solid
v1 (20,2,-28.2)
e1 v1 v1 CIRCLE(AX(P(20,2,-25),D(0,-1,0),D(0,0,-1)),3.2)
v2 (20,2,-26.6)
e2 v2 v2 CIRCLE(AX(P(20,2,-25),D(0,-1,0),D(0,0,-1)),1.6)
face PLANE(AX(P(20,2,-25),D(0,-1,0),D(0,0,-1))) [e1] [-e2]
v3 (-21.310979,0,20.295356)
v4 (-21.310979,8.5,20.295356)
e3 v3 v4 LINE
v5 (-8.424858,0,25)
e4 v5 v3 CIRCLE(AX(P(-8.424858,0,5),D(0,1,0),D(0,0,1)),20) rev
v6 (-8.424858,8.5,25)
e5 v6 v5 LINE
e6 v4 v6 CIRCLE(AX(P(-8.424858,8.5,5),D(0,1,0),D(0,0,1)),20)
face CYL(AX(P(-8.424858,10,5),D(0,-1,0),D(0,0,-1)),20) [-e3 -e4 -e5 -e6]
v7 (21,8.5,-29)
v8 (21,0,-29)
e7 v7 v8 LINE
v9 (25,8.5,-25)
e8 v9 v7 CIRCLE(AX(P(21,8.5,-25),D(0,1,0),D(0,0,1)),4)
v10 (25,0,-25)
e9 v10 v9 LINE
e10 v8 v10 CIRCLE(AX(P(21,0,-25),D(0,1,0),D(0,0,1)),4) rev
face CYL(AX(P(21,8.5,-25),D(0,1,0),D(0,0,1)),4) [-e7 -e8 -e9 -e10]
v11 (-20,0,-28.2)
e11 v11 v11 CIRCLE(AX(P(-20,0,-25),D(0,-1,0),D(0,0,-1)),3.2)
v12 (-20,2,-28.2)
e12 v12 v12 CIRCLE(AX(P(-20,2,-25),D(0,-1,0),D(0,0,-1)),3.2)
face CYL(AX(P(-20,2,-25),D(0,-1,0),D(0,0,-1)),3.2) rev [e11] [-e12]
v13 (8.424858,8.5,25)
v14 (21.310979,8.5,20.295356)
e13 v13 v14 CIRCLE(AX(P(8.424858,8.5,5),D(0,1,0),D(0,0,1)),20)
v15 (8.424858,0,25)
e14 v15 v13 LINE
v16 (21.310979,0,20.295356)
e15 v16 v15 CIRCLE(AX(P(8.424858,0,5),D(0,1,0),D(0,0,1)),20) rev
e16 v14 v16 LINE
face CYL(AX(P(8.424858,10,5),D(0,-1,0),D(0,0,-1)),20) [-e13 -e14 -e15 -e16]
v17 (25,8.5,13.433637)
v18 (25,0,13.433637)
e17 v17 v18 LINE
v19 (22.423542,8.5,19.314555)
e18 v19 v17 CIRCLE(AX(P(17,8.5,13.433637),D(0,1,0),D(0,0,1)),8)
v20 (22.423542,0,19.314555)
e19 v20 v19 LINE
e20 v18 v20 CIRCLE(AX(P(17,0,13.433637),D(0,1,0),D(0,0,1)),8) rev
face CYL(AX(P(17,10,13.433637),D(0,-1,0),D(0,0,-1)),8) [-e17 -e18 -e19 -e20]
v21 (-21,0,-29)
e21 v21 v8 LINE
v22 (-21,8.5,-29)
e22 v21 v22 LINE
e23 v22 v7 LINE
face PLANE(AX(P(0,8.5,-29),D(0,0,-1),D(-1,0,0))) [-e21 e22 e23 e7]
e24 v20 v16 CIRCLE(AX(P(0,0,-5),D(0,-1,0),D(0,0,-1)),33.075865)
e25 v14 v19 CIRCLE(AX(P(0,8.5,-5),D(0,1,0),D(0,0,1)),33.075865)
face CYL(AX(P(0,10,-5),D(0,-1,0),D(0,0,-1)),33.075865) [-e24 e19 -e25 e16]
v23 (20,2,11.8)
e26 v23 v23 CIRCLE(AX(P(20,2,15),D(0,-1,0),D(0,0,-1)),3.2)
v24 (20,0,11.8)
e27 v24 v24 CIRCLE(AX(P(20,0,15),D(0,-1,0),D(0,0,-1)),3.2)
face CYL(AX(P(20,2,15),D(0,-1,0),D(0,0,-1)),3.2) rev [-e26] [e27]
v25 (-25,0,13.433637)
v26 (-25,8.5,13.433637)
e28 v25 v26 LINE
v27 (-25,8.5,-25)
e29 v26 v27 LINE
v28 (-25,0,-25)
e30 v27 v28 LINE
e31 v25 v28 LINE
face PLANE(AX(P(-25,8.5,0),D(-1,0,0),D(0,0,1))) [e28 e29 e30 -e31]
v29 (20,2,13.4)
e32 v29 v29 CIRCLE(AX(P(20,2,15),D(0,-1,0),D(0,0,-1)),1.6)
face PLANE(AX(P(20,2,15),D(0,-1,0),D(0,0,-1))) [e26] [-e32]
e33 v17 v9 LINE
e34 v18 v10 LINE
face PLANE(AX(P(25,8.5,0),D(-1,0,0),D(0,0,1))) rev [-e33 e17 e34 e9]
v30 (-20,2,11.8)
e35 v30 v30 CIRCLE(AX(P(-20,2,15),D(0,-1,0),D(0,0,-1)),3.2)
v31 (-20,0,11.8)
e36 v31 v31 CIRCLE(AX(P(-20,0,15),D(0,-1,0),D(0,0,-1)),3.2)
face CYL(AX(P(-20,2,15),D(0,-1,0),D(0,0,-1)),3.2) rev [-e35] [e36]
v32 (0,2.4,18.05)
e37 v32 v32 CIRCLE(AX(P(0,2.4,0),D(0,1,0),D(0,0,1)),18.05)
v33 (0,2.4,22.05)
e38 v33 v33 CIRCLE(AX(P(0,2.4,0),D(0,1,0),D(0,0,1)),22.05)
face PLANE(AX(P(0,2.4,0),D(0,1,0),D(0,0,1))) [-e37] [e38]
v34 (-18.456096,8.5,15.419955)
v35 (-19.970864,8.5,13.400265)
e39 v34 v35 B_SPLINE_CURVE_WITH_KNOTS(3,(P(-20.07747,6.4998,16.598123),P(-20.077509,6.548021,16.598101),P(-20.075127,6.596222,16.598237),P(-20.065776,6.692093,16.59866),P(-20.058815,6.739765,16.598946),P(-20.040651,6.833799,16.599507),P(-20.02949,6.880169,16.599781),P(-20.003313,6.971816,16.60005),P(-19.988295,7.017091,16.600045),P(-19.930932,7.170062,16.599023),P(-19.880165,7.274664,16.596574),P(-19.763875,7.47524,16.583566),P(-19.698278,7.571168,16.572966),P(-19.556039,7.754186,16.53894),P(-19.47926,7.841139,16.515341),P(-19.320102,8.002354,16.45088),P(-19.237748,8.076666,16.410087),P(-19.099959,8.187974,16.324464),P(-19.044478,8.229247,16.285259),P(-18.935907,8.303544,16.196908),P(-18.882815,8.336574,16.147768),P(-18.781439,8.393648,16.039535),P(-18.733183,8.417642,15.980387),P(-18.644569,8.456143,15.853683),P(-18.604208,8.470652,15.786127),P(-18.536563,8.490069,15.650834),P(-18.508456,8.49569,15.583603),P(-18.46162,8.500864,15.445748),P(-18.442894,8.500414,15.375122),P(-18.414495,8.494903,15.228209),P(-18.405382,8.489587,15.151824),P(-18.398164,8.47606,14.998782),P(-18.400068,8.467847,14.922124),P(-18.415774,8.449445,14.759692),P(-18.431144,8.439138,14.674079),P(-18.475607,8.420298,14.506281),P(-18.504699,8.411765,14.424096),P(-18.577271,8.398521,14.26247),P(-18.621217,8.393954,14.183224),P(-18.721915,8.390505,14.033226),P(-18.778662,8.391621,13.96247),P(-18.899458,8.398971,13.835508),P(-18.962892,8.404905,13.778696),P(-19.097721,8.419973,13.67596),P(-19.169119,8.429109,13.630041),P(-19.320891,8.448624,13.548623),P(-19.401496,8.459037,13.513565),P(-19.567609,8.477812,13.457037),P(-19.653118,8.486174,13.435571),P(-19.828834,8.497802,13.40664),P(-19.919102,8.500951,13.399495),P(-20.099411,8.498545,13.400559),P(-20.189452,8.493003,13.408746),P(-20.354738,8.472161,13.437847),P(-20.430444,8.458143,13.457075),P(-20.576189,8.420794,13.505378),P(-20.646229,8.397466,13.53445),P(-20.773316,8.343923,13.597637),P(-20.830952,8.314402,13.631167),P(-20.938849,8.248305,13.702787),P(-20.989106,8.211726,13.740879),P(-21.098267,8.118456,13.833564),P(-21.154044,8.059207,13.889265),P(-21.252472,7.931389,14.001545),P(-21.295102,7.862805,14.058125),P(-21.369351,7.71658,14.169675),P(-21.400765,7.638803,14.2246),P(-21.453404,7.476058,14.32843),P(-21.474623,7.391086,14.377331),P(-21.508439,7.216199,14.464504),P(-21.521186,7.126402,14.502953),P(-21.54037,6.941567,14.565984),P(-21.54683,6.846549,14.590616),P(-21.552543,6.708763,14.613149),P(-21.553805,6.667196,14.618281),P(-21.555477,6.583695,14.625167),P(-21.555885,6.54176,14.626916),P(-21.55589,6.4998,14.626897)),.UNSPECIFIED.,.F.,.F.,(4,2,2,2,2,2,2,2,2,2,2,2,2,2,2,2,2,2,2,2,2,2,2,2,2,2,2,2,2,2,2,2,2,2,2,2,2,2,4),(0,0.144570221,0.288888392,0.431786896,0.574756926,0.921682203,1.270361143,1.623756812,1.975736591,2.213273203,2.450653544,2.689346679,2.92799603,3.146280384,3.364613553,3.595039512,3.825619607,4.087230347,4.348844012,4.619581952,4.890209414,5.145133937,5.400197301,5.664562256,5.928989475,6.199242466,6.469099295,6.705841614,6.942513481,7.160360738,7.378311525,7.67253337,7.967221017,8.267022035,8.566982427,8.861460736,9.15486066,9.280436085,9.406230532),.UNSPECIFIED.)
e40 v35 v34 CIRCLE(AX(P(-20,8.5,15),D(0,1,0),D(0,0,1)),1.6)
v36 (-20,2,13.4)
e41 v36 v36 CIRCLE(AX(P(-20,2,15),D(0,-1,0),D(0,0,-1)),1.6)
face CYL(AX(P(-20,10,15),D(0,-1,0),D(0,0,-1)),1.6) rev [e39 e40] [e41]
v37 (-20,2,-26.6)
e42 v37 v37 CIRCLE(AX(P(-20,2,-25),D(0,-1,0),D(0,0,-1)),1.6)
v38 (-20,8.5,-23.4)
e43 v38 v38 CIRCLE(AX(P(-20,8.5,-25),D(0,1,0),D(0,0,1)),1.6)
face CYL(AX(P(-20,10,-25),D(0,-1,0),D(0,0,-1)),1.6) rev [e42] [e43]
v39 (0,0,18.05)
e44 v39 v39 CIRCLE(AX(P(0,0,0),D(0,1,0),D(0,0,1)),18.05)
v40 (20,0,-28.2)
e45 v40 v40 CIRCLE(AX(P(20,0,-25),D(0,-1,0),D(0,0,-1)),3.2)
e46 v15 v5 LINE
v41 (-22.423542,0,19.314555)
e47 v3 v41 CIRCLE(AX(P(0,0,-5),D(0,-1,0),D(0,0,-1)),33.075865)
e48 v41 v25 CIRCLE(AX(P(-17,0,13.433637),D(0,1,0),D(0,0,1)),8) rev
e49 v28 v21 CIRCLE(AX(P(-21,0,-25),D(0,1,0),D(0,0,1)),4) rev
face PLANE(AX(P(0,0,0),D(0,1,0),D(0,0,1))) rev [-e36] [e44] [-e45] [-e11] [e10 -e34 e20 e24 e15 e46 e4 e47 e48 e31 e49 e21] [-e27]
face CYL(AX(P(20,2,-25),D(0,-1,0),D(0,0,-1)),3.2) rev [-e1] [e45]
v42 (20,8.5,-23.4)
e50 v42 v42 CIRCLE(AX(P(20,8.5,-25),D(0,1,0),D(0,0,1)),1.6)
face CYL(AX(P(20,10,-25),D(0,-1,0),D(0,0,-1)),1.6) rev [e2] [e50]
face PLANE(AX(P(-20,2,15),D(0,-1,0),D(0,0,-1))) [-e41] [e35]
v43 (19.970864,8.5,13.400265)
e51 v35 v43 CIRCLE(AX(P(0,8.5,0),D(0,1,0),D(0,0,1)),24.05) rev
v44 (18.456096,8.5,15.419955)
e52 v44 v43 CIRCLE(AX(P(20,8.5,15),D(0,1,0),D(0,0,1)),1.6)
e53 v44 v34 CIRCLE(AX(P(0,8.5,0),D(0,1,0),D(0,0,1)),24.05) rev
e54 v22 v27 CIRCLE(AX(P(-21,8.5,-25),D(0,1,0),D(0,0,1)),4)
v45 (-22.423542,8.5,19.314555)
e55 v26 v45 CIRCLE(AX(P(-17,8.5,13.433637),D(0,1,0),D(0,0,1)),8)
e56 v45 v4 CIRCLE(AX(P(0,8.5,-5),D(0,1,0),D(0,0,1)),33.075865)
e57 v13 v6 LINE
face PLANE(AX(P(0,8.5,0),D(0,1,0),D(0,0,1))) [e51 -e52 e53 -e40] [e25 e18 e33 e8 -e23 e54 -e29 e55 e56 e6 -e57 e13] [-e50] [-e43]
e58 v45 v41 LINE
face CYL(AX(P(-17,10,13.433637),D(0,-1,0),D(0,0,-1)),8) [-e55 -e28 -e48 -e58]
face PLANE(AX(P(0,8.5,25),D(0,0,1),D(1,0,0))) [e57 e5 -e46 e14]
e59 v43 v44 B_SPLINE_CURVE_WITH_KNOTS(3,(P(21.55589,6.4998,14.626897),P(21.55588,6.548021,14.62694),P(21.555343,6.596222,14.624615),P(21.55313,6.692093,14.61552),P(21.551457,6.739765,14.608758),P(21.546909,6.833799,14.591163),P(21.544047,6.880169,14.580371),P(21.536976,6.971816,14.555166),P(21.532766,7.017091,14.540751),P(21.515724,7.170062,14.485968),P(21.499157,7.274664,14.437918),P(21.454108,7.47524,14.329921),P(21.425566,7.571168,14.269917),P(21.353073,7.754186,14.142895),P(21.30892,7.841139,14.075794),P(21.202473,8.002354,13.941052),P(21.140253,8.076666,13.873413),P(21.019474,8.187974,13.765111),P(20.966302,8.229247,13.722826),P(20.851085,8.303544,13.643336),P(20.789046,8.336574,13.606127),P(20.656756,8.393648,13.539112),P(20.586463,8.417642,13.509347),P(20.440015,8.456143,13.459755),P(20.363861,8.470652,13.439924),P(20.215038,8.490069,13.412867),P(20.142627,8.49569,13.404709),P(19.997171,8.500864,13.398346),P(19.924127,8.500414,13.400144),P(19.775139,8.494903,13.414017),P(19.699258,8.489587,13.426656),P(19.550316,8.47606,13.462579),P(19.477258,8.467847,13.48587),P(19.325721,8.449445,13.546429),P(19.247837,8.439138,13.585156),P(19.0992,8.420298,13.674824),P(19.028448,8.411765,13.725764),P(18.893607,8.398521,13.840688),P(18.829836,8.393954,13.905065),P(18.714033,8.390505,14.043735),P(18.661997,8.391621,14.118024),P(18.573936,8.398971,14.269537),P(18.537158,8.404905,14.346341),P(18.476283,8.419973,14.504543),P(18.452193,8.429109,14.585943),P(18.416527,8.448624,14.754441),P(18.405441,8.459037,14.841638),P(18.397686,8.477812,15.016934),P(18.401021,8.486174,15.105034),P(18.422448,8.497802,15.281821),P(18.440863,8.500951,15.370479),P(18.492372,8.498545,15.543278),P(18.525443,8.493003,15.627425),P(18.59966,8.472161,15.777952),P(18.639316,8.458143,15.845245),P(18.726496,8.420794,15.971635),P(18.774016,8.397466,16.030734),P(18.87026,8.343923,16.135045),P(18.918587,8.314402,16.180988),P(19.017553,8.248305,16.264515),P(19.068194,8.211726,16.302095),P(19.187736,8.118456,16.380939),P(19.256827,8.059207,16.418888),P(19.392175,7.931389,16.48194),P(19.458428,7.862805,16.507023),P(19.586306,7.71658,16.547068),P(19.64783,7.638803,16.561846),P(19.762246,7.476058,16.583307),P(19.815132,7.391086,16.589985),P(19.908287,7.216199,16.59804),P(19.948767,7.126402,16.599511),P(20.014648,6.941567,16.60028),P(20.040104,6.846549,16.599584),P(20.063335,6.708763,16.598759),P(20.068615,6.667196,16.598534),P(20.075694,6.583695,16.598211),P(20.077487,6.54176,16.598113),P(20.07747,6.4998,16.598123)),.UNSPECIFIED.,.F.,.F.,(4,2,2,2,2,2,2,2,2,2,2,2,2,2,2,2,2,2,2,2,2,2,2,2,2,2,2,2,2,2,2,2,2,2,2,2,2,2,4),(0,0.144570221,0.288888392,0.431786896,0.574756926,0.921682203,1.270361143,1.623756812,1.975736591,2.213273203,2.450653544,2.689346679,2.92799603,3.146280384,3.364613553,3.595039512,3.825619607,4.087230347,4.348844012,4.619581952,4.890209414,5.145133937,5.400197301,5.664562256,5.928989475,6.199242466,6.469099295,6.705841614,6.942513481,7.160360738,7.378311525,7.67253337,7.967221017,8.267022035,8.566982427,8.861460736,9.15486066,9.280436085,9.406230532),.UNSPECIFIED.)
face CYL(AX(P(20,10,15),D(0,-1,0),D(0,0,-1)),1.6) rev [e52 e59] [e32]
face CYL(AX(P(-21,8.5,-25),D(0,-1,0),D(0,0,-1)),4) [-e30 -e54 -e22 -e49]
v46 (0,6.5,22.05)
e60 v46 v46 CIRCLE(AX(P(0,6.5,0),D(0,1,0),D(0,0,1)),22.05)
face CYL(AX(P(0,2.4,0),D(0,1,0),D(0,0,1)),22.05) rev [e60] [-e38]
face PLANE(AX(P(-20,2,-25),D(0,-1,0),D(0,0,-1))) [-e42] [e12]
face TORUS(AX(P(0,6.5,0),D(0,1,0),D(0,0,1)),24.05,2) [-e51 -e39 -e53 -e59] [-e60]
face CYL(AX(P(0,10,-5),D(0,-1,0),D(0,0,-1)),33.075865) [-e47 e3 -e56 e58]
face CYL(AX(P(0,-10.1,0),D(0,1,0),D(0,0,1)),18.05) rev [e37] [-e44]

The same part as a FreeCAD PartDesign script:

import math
import FreeCAD as App
import Part
import Sketcher

V = App.Vector


def edges_at(feature, points):
    """Names of the edges that pass closest to the given points."""
    edges = feature.Shape.Edges
    near = lambda p: min(range(len(edges)), key=lambda i: edges[i].distToShape(Part.Vertex(*p))[0])
    return sorted({f"Edge{near(p) + 1}" for p in points})

doc = App.newDocument("Part")
body = doc.addObject("PartDesign::Body", "Body")

sketch1 = body.newObject("Sketcher::SketchObject", "Sketch")
sketch1.AttachmentSupport = (doc.getObject("XZ_Plane"), [""])
sketch1.MapMode = "FlatFace"
sketch1.addGeometry(Part.Circle(V(0, 0, 0), V(0, 0, 1), 25), False)
sketch1.addConstraint(Sketcher.Constraint("Coincident", 0, 3, -1, 1))
sketch1.addConstraint(Sketcher.Constraint("Diameter", 0, 50.0))
pad1 = body.newObject("PartDesign::Pad", "Pad")
pad1.Profile = sketch1
pad1.Length = 8.5
pad1.Reversed = True

sketch2 = body.newObject("Sketcher::SketchObject", "Sketch001")
sketch2.AttachmentSupport = (doc.getObject("XZ_Plane"), [""])
sketch2.MapMode = "FlatFace"
sketch2.AttachmentOffset = App.Placement(V(0, 0, -8.5), App.Rotation())
sketch2.addGeometry(Part.Circle(V(0, 0, 0), V(0, 0, 1), 22), False)
sketch2.addConstraint(Sketcher.Constraint("Coincident", 0, 3, -1, 1))
sketch2.addConstraint(Sketcher.Constraint("Diameter", 0, 44.1))
pocket1 = body.newObject("PartDesign::Pocket", "Pocket")
pocket1.Profile = sketch2
pocket1.Length = 6.1
pocket1.Reversed = True

sketch3 = body.newObject("Sketcher::SketchObject", "Sketch002")
sketch3.AttachmentSupport = (doc.getObject("XZ_Plane"), [""])
sketch3.MapMode = "FlatFace"
sketch3.AttachmentOffset = App.Placement(V(0, 0, -2.4), App.Rotation())
sketch3.addGeometry(Part.Circle(V(0, 0, 0), V(0, 0, 1), 18), False)
sketch3.addConstraint(Sketcher.Constraint("Coincident", 0, 3, -1, 1))
sketch3.addConstraint(Sketcher.Constraint("Diameter", 0, 36.1))
pocket2 = body.newObject("PartDesign::Pocket", "Pocket001")
pocket2.Profile = sketch3
pocket2.Length = 12.5
pocket2.Reversed = True
doc.recompute()

fillet = body.newObject("PartDesign::Fillet", "Fillet")
fillet.Base = (pocket2, edges_at(pocket2, [(0, 8.5, -22.05)]))
fillet.Radius = 2

sketch4 = body.newObject("Sketcher::SketchObject", "Sketch003")
sketch4.AttachmentSupport = (doc.getObject("XZ_Plane"), [""])
sketch4.MapMode = "FlatFace"
sketch4.addGeometry(Part.ArcOfCircle(Part.Circle(V(0, 0, 0), V(0, 0, 1), 25), math.radians(90), math.radians(180)), False)
sketch4.addGeometry(Part.LineSegment(V(0, 25, 0), V(-25, 25, 0)), False)
sketch4.addGeometry(Part.LineSegment(V(-25, 25, 0), V(-25, 0, 0)), False)
sketch4.addGeometry(Part.LineSegment(V(25, 25, 0), V(0, 25, 0)), False)
sketch4.addGeometry(Part.ArcOfCircle(Part.Circle(V(0, 0, 0), V(0, 0, 1), 25), math.radians(0), math.radians(90)), False)
sketch4.addGeometry(Part.LineSegment(V(25, 0, 0), V(25, 25, 0)), False)
sketch4.addGeometry(Part.ArcOfCircle(Part.Circle(V(0, 0, 0), V(0, 0, 1), 25), math.radians(-90), math.radians(0)), False)
sketch4.addGeometry(Part.ArcOfCircle(Part.Circle(V(0, 0, 0), V(0, 0, 1), 25), math.radians(-180), math.radians(-90)), False)
sketch4.addGeometry(Part.LineSegment(V(-25, 0, 0), V(-25, -29, 0)), False)
sketch4.addGeometry(Part.LineSegment(V(-25, -29, 0), V(25, -29, 0)), False)
sketch4.addGeometry(Part.LineSegment(V(25, -29, 0), V(25, 0, 0)), False)
sketch4.addConstraint(Sketcher.Constraint("Tangent", 0, 1, 1, 1))
sketch4.addConstraint(Sketcher.Constraint("Coincident", 1, 2, 2, 1))
sketch4.addConstraint(Sketcher.Constraint("Tangent", 2, 2, 0, 2))
sketch4.addConstraint(Sketcher.Constraint("Tangent", 3, 2, 4, 2))
sketch4.addConstraint(Sketcher.Constraint("Tangent", 4, 1, 5, 1))
sketch4.addConstraint(Sketcher.Constraint("Coincident", 5, 2, 3, 1))
sketch4.addConstraint(Sketcher.Constraint("Tangent", 6, 1, 7, 2))
sketch4.addConstraint(Sketcher.Constraint("Tangent", 7, 1, 8, 1))
sketch4.addConstraint(Sketcher.Constraint("Coincident", 8, 2, 9, 1))
sketch4.addConstraint(Sketcher.Constraint("Coincident", 9, 2, 10, 1))
sketch4.addConstraint(Sketcher.Constraint("Tangent", 10, 2, 6, 2))
sketch4.addConstraint(Sketcher.Constraint("Horizontal", 1))
sketch4.addConstraint(Sketcher.Constraint("Vertical", 2))
sketch4.addConstraint(Sketcher.Constraint("Horizontal", 3))
sketch4.addConstraint(Sketcher.Constraint("Vertical", 5))
sketch4.addConstraint(Sketcher.Constraint("Vertical", 8))
sketch4.addConstraint(Sketcher.Constraint("Horizontal", 9))
sketch4.addConstraint(Sketcher.Constraint("Vertical", 10))
sketch4.addConstraint(Sketcher.Constraint("Coincident", 0, 3, -1, 1))
sketch4.addConstraint(Sketcher.Constraint("Coincident", 4, 3, -1, 1))
sketch4.addConstraint(Sketcher.Constraint("Coincident", 6, 3, -1, 1))
sketch4.addConstraint(Sketcher.Constraint("Coincident", 7, 1, 2, 2))
sketch4.addConstraint(Sketcher.Constraint("Equal", 0, 4))
sketch4.addConstraint(Sketcher.Constraint("PointOnObject", 6, 1, -2))
sketch4.addConstraint(Sketcher.Constraint("Radius", 0, 25.0))
sketch4.addConstraint(Sketcher.Constraint("DistanceY", 8, 2, 8, 1, 29.0))
pad2 = body.newObject("PartDesign::Pad", "Pad001")
pad2.Profile = sketch4
pad2.Length = 8.5
pad2.Reversed = True

sketch5 = body.newObject("Sketcher::SketchObject", "Sketch004")
sketch5.AttachmentSupport = (doc.getObject("XZ_Plane"), [""])
sketch5.MapMode = "FlatFace"
sketch5.addGeometry(Part.Circle(V(-20, 15, 0), V(0, 0, 1), 3.2), False)
sketch5.addGeometry(Part.Circle(V(-20, 15, 0), V(0, 0, 1), 1.6), False)
sketch5.addGeometry(Part.Circle(V(20, 15, 0), V(0, 0, 1), 3.2), False)
sketch5.addGeometry(Part.Circle(V(20, 15, 0), V(0, 0, 1), 1.6), False)
sketch5.addGeometry(Part.Circle(V(20, -25, 0), V(0, 0, 1), 3.2), False)
sketch5.addGeometry(Part.Circle(V(20, -25, 0), V(0, 0, 1), 1.6), False)
sketch5.addGeometry(Part.Circle(V(-20, -25, 0), V(0, 0, 1), 3.2), False)
sketch5.addGeometry(Part.Circle(V(-20, -25, 0), V(0, 0, 1), 1.6), False)
sketch5.addConstraint(Sketcher.Constraint("Coincident", 1, 3, 0, 3))
sketch5.addConstraint(Sketcher.Constraint("Coincident", 3, 3, 2, 3))
sketch5.addConstraint(Sketcher.Constraint("Coincident", 5, 3, 4, 3))
sketch5.addConstraint(Sketcher.Constraint("Coincident", 7, 3, 6, 3))
sketch5.addConstraint(Sketcher.Constraint("Equal", 0, 2))
sketch5.addConstraint(Sketcher.Constraint("Equal", 1, 3))
sketch5.addConstraint(Sketcher.Constraint("Equal", 2, 4))
sketch5.addConstraint(Sketcher.Constraint("Equal", 3, 5))
sketch5.addConstraint(Sketcher.Constraint("Equal", 4, 6))
sketch5.addConstraint(Sketcher.Constraint("Equal", 5, 7))
sketch5.addConstraint(Sketcher.Constraint("Symmetric", 0, 3, 2, 3, -2))
sketch5.addConstraint(Sketcher.Constraint("Symmetric", 4, 3, 6, 3, -2))
sketch5.addConstraint(Sketcher.Constraint("Vertical", 3, 3, 4, 3))
sketch5.addConstraint(Sketcher.Constraint("Diameter", 0, 6.4))
sketch5.addConstraint(Sketcher.Constraint("Diameter", 1, 3.2))
sketch5.addConstraint(Sketcher.Constraint("DistanceX", 0, 3, -1, 1, 20.0))
sketch5.addConstraint(Sketcher.Constraint("DistanceY", -1, 1, 0, 3, 15.0))
sketch5.addConstraint(Sketcher.Constraint("DistanceY", 4, 3, -1, 1, 25.0))
pocket3 = body.newObject("PartDesign::Pocket", "Pocket002")
pocket3.Profile = sketch5
pocket3.Length = 2

sketch6 = body.newObject("Sketcher::SketchObject", "Sketch005")
sketch6.AttachmentSupport = (doc.getObject("XZ_Plane"), [""])
sketch6.MapMode = "FlatFace"
sketch6.addGeometry(Part.Circle(V(-20, 15, 0), V(0, 0, 1), 1.6), False)
sketch6.addGeometry(Part.Circle(V(20, 15, 0), V(0, 0, 1), 1.6), False)
sketch6.addGeometry(Part.Circle(V(20, -25, 0), V(0, 0, 1), 1.6), False)
sketch6.addGeometry(Part.Circle(V(-20, -25, 0), V(0, 0, 1), 1.6), False)
sketch6.addConstraint(Sketcher.Constraint("Equal", 0, 1))
sketch6.addConstraint(Sketcher.Constraint("Equal", 1, 2))
sketch6.addConstraint(Sketcher.Constraint("Equal", 2, 3))
sketch6.addConstraint(Sketcher.Constraint("Symmetric", 0, 3, 1, 3, -2))
sketch6.addConstraint(Sketcher.Constraint("Symmetric", 2, 3, 3, 3, -2))
sketch6.addConstraint(Sketcher.Constraint("Vertical", 1, 3, 2, 3))
sketch6.addConstraint(Sketcher.Constraint("Diameter", 0, 3.2))
sketch6.addConstraint(Sketcher.Constraint("DistanceX", 0, 3, -1, 1, 20.0))
sketch6.addConstraint(Sketcher.Constraint("DistanceY", -1, 1, 0, 3, 15.0))
sketch6.addConstraint(Sketcher.Constraint("DistanceY", 2, 3, -1, 1, 25.0))
pocket4 = body.newObject("PartDesign::Pocket", "Pocket003")
pocket4.Profile = sketch6
pocket4.Length = 10
doc.recompute()

fillet2 = body.newObject("PartDesign::Fillet", "Fillet001")
fillet2.Base = (pocket4, edges_at(pocket4, [(25, 4.25, -29), (-25, 4.25, -29)]))
fillet2.Radius = 4

sketch7 = body.newObject("Sketcher::SketchObject", "Sketch006")
sketch7.AttachmentSupport = (doc.getObject("XZ_Plane"), [""])
sketch7.MapMode = "FlatFace"
sketch7.addGeometry(Part.LineSegment(V(-25, 25, 0), V(-25, 17, 0)), False)
sketch7.addGeometry(Part.ArcOfCircle(Part.Circle(V(0, -5, 0), V(0, 0, 1), 33), math.radians(115), math.radians(139)), False)
sketch7.addGeometry(Part.LineSegment(V(-14, 25, 0), V(-25, 25, 0)), False)
sketch7.addGeometry(Part.LineSegment(V(25, 25, 0), V(14, 25, 0)), False)
sketch7.addGeometry(Part.ArcOfCircle(Part.Circle(V(0, -5, 0), V(0, 0, 1), 33), math.radians(41), math.radians(65)), False)
sketch7.addGeometry(Part.LineSegment(V(25, 17, 0), V(25, 25, 0)), False)
sketch7.addConstraint(Sketcher.Constraint("Coincident", 0, 2, 1, 2))
sketch7.addConstraint(Sketcher.Constraint("Coincident", 1, 1, 2, 1))
sketch7.addConstraint(Sketcher.Constraint("Coincident", 2, 2, 0, 1))
sketch7.addConstraint(Sketcher.Constraint("Coincident", 3, 2, 4, 2))
sketch7.addConstraint(Sketcher.Constraint("Coincident", 4, 1, 5, 1))
sketch7.addConstraint(Sketcher.Constraint("Coincident", 5, 2, 3, 1))
sketch7.addConstraint(Sketcher.Constraint("Vertical", 0))
sketch7.addConstraint(Sketcher.Constraint("Horizontal", 2))
sketch7.addConstraint(Sketcher.Constraint("Horizontal", 3))
sketch7.addConstraint(Sketcher.Constraint("Vertical", 5))
sketch7.addConstraint(Sketcher.Constraint("Coincident", 4, 3, 1, 3))
sketch7.addConstraint(Sketcher.Constraint("Equal", 1, 4))
sketch7.addConstraint(Sketcher.Constraint("Symmetric", 1, 1, 3, 2, -2))
sketch7.addConstraint(Sketcher.Constraint("Horizontal", 0, 2, 4, 1))
sketch7.addConstraint(Sketcher.Constraint("DistanceY", 1, 3, -1, 1, 5.0))
sketch7.addConstraint(Sketcher.Constraint("DistanceX", 0, 2, -1, 1, 25.0))
sketch7.addConstraint(Sketcher.Constraint("DistanceY", -1, 1, 1, 1, 25.0))
sketch7.addConstraint(Sketcher.Constraint("Radius", 1, 33.075865))
pocket5 = body.newObject("PartDesign::Pocket", "Pocket004")
pocket5.Profile = sketch7
pocket5.Length = 10
doc.recompute()

fillet3 = body.newObject("PartDesign::Fillet", "Fillet002")
fillet3.Base = (pocket5, edges_at(pocket5, [(-25, 4.25, 16.657), (25, 4.25, 16.657)]))
fillet3.Radius = 8
doc.recompute()

fillet4 = body.newObject("PartDesign::Fillet", "Fillet003")
fillet4.Base = (fillet3, edges_at(fillet3, [(-13.929, 4.25, 25), (13.929, 4.25, 25)]))
fillet4.Radius = 20

doc.recompute()
